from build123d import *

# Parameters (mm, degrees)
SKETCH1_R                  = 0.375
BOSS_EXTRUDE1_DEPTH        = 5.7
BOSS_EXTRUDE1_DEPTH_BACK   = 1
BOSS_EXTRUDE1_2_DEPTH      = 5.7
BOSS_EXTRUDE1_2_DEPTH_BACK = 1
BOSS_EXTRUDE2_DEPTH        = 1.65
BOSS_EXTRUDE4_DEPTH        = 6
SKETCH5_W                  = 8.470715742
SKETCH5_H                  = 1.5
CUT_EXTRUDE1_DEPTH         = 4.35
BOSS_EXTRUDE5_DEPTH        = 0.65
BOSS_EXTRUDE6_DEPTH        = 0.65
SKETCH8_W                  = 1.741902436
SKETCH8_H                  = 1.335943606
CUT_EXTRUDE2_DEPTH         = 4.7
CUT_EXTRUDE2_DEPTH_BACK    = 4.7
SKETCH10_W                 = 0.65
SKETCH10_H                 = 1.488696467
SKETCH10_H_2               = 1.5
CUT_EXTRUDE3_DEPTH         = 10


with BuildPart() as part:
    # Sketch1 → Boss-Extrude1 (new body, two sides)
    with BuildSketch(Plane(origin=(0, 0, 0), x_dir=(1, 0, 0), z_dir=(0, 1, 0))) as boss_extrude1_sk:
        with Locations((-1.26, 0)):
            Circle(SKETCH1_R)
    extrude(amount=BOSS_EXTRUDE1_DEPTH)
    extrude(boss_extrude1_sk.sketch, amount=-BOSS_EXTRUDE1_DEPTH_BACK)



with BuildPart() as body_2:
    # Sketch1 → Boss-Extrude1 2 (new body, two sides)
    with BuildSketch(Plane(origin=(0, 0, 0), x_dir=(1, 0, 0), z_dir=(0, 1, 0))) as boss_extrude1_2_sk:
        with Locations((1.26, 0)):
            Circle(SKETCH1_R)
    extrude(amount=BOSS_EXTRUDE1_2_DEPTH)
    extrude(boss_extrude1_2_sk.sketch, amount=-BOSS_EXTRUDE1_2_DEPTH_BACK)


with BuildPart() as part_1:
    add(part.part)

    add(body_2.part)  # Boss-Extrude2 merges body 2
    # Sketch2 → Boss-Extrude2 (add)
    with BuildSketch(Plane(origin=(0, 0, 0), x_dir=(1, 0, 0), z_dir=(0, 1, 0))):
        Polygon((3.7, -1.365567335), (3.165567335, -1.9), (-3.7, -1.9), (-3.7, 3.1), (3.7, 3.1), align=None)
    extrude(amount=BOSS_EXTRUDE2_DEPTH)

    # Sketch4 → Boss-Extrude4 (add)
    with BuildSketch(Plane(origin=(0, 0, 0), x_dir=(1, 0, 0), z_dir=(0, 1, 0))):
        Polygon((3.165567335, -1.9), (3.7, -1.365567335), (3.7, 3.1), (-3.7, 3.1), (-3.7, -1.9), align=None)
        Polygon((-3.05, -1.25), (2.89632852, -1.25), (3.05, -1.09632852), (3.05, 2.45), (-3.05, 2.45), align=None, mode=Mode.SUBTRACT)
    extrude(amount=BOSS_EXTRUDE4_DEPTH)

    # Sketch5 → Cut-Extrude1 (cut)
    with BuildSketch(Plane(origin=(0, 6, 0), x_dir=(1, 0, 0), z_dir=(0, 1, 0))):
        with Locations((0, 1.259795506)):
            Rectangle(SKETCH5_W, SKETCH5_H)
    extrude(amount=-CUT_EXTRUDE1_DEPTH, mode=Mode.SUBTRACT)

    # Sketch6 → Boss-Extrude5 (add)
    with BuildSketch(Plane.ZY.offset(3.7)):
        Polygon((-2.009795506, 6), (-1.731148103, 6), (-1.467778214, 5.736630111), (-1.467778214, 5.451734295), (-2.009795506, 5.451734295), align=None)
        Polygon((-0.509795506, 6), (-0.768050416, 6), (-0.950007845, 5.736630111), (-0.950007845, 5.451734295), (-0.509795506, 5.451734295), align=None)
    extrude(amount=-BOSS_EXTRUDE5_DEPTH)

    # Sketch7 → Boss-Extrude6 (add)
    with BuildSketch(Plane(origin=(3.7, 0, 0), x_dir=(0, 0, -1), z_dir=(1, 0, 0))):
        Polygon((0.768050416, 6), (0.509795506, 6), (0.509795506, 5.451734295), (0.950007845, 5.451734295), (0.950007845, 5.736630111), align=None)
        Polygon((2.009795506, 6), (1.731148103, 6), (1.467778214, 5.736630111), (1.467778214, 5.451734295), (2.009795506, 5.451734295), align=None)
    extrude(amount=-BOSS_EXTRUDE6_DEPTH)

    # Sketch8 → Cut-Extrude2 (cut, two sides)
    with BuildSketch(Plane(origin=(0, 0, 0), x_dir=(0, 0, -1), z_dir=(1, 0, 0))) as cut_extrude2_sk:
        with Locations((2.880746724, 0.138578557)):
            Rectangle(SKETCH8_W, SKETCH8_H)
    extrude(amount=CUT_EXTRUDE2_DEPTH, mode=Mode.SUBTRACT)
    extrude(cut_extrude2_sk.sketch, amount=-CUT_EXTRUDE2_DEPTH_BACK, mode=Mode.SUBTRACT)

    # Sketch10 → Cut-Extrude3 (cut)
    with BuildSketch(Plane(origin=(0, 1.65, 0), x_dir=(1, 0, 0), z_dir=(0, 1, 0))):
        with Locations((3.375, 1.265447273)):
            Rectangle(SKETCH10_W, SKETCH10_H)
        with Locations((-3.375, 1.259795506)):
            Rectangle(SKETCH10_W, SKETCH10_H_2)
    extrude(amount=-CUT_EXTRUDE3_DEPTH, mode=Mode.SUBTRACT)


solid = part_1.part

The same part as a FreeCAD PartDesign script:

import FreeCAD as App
import Part
import Sketcher

V = App.Vector
Q = App.Units.Quantity

doc = App.newDocument("Part")
params = doc.addObject("Spreadsheet::Sheet", "Params")
for row, (alias, value) in enumerate([
    ("sketch1_diameter", "0.75 mm"),
    ("pad1_length", "5.7 mm"),
    ("pad1_length2", "1 mm"),
    ("sketch2_diameter", "0.75 mm"),
    ("pad2_length", "5.7 mm"),
    ("pad2_length2", "1 mm"),
    ("sketch3_height", "5 mm"),
    ("sketch3_width", "7.4 mm"),
    ("pad3_length", "1.65 mm"),
    ("sketch4_height", "5 mm"),
    ("sketch4_width", "7.4 mm"),
    ("sketch4_width2", "6.1 mm"),
    ("sketch4_height2", "3.7 mm"),
    ("pad4_length", "6 mm"),
    ("sketch5_height", "1.5 mm"),
    ("pocket1_length", "4.35 mm"),
    ("pad5_length", "0.65 mm"),
    ("pad6_length", "0.65 mm"),
    ("sketch9_height", "1.5 mm"),
    ("sketch9_width", "0.65 mm"),
    ("pocket3_length", "10 mm"),
], start=1):
    params.set(f"A{row}", alias)
    params.set(f"B{row}", "=" + value)
    params.setAlias(f"B{row}", alias)

body = doc.addObject("PartDesign::Body", "Body")

# Sketch on XZ plane
sketch1 = body.newObject("Sketcher::SketchObject", "Sketch")
sketch1.AttachmentSupport = (doc.getObject("XZ_Plane"), [""])
sketch1.MapMode = "FlatFace"
sketch1.addGeometry(Part.Circle(V(-1.26, 0, 0), V(0, 0, 1), 0.38), False)
sketch1.addConstraint(Sketcher.Constraint("PointOnObject", 0, 3, -1))
sketch1.addConstraint(Sketcher.Constraint("Diameter", 0, Q("0.75 mm")))
sketch1.addConstraint(Sketcher.Constraint("DistanceX", 0, 3, -1, 1, Q("1.26 mm")))
sketch1.setExpression("Constraints[1]", "Params.sketch1_diameter")
pad1 = body.newObject("PartDesign::Pad", "Pad")
pad1.Profile = sketch1
pad1.Type = "TwoLengths"
pad1.setExpression("Length", "Params.pad1_length")
pad1.setExpression("Length2", "Params.pad1_length2")
pad1.Reversed = True
body2 = doc.addObject("PartDesign::Body", "Body001")

# Sketch on XZ plane
sketch2 = body2.newObject("Sketcher::SketchObject", "Sketch001")
sketch2.AttachmentSupport = (doc.getObject("XZ_Plane001"), [""])
sketch2.MapMode = "FlatFace"
sketch2.addGeometry(Part.Circle(V(1.26, 0, 0), V(0, 0, 1), 0.38), False)
sketch2.addConstraint(Sketcher.Constraint("PointOnObject", 0, 3, -1))
sketch2.addConstraint(Sketcher.Constraint("Diameter", 0, Q("0.75 mm")))
sketch2.addConstraint(Sketcher.Constraint("DistanceX", -1, 1, 0, 3, Q("1.26 mm")))
sketch2.setExpression("Constraints[1]", "Params.sketch2_diameter")
pad2 = body2.newObject("PartDesign::Pad", "Pad001")
pad2.Profile = sketch2
pad2.Type = "TwoLengths"
pad2.setExpression("Length", "Params.pad2_length")
pad2.setExpression("Length2", "Params.pad2_length2")
pad2.Reversed = True
body.AllowCompound = True
doc.recompute()

boolean = body.newObject("PartDesign::Boolean", "Boolean")
boolean.Type = "Fuse"
boolean.addObjects([body2])

# Sketch on XZ plane
sketch3 = body.newObject("Sketcher::SketchObject", "Sketch002")
sketch3.AttachmentSupport = (doc.getObject("XZ_Plane"), [""])
sketch3.MapMode = "FlatFace"
sketch3.addGeometry(Part.LineSegment(V(3.2, 1.9, 0), V(3.7, 1.4, 0)), False)
sketch3.addGeometry(Part.LineSegment(V(3.7, 1.4, 0), V(3.7, -3.1, 0)), False)
sketch3.addGeometry(Part.LineSegment(V(3.7, -3.1, 0), V(-3.7, -3.1, 0)), False)
sketch3.addGeometry(Part.LineSegment(V(-3.7, -3.1, 0), V(-3.7, 1.9, 0)), False)
sketch3.addGeometry(Part.LineSegment(V(-3.7, 1.9, 0), V(3.2, 1.9, 0)), False)
sketch3.addConstraint(Sketcher.Constraint("Coincident", 0, 2, 1, 1))
sketch3.addConstraint(Sketcher.Constraint("Coincident", 1, 2, 2, 1))
sketch3.addConstraint(Sketcher.Constraint("Coincident", 2, 2, 3, 1))
sketch3.addConstraint(Sketcher.Constraint("Coincident", 3, 2, 4, 1))
sketch3.addConstraint(Sketcher.Constraint("Coincident", 4, 2, 0, 1))
sketch3.addConstraint(Sketcher.Constraint("Vertical", 1))
sketch3.addConstraint(Sketcher.Constraint("Horizontal", 2))
sketch3.addConstraint(Sketcher.Constraint("Vertical", 3))
sketch3.addConstraint(Sketcher.Constraint("Horizontal", 4))
sketch3.addConstraint(Sketcher.Constraint("DistanceY", 3, 1, 3, 2, Q("5 mm")))
sketch3.addConstraint(Sketcher.Constraint("Angle", 0, Q("-45 deg")))
sketch3.addConstraint(Sketcher.Constraint("DistanceX", 2, 2, 2, 1, Q("7.4 mm")))
sketch3.addConstraint(Sketcher.Constraint("DistanceX", -1, 1, 0, 2, Q("3.7 mm")))
sketch3.addConstraint(Sketcher.Constraint("DistanceY", 1, 2, -1, 1, Q("3.1 mm")))
sketch3.addConstraint(Sketcher.Constraint("Distance", 0, Q("0.755802 mm")))
sketch3.setExpression("Constraints[9]", "Params.sketch3_height")
sketch3.setExpression("Constraints[11]", "Params.sketch3_width")
pad3 = body.newObject("PartDesign::Pad", "Pad002")
pad3.Profile = sketch3
pad3.setExpression("Length", "Params.pad3_length")
pad3.Reversed = True

# Sketch on XZ plane
sketch4 = body.newObject("Sketcher::SketchObject", "Sketch003")
sketch4.AttachmentSupport = (doc.getObject("XZ_Plane"), [""])
sketch4.MapMode = "FlatFace"
sketch4.addGeometry(Part.LineSegment(V(3.17, 1.9, 0), V(3.7, 1.37, 0)), False)
sketch4.addGeometry(Part.LineSegment(V(3.7, 1.37, 0), V(3.7, -3.1, 0)), False)
sketch4.addGeometry(Part.LineSegment(V(3.7, -3.1, 0), V(-3.7, -3.1, 0)), False)
sketch4.addGeometry(Part.LineSegment(V(-3.7, -3.1, 0), V(-3.7, 1.9, 0)), False)
sketch4.addGeometry(Part.LineSegment(V(-3.7, 1.9, 0), V(3.17, 1.9, 0)), False)
sketch4.addGeometry(Part.LineSegment(V(2.9, 1.25, 0), V(-3.05, 1.25, 0)), False)
sketch4.addGeometry(Part.LineSegment(V(-3.05, 1.25, 0), V(-3.05, -2.45, 0)), False)
sketch4.addGeometry(Part.LineSegment(V(-3.05, -2.45, 0), V(3.05, -2.45, 0)), False)
sketch4.addGeometry(Part.LineSegment(V(3.05, -2.45, 0), V(3.05, 1.1, 0)), False)
sketch4.addGeometry(Part.LineSegment(V(3.05, 1.1, 0), V(2.9, 1.25, 0)), False)
sketch4.addConstraint(Sketcher.Constraint("Coincident", 0, 2, 1, 1))
sketch4.addConstraint(Sketcher.Constraint("Coincident", 1, 2, 2, 1))
sketch4.addConstraint(Sketcher.Constraint("Coincident", 2, 2, 3, 1))
sketch4.addConstraint(Sketcher.Constraint("Coincident", 3, 2, 4, 1))
sketch4.addConstraint(Sketcher.Constraint("Coincident", 4, 2, 0, 1))
sketch4.addConstraint(Sketcher.Constraint("Coincident", 5, 2, 6, 1))
sketch4.addConstraint(Sketcher.Constraint("Coincident", 6, 2, 7, 1))
sketch4.addConstraint(Sketcher.Constraint("Coincident", 7, 2, 8, 1))
sketch4.addConstraint(Sketcher.Constraint("Coincident", 8, 2, 9, 1))
sketch4.addConstraint(Sketcher.Constraint("Coincident", 9, 2, 5, 1))
sketch4.addConstraint(Sketcher.Constraint("Vertical", 1))
sketch4.addConstraint(Sketcher.Constraint("Horizontal", 2))
sketch4.addConstraint(Sketcher.Constraint("Vertical", 3))
sketch4.addConstraint(Sketcher.Constraint("Horizontal", 4))
sketch4.addConstraint(Sketcher.Constraint("Horizontal", 5))
sketch4.addConstraint(Sketcher.Constraint("Vertical", 6))
sketch4.addConstraint(Sketcher.Constraint("Horizontal", 7))
sketch4.addConstraint(Sketcher.Constraint("Vertical", 8))
sketch4.addConstraint(Sketcher.Constraint("Parallel", 0, 9))
sketch4.addConstraint(Sketcher.Constraint("DistanceY", 3, 1, 3, 2, Q("5 mm")))
sketch4.addConstraint(Sketcher.Constraint("Angle", 0, Q("-45 deg")))
sketch4.addConstraint(Sketcher.Constraint("DistanceX", 2, 2, 2, 1, Q("7.4 mm")))
sketch4.addConstraint(Sketcher.Constraint("DistanceX", 7, 1, 7, 2, Q("6.1 mm")))
sketch4.addConstraint(Sketcher.Constraint("DistanceY", 6, 2, 6, 1, Q("3.7 mm")))
sketch4.addConstraint(Sketcher.Constraint("DistanceX", -1, 1, 0, 2, Q("3.7 mm")))
sketch4.addConstraint(Sketcher.Constraint("DistanceY", 1, 2, -1, 1, Q("3.1 mm")))
sketch4.addConstraint(Sketcher.Constraint("DistanceX", 5, 2, -1, 1, Q("3.05 mm")))
sketch4.addConstraint(Sketcher.Constraint("DistanceY", -1, 1, 5, 2, Q("1.25 mm")))
sketch4.addConstraint(Sketcher.Constraint("Distance", 0, Q("0.755802 mm")))
sketch4.addConstraint(Sketcher.Constraint("DistanceX", 5, 2, 5, 1, Q("5.946329 mm")))
sketch4.setExpression("Constraints[19]", "Params.sketch4_height")
sketch4.setExpression("Constraints[21]", "Params.sketch4_width")
sketch4.setExpression("Constraints[22]", "Params.sketch4_width2")
sketch4.setExpression("Constraints[23]", "Params.sketch4_height2")
pad4 = body.newObject("PartDesign::Pad", "Pad003")
pad4.Profile = sketch4
pad4.setExpression("Length", "Params.pad4_length")
pad4.Reversed = True

# Sketch on XZ plane
sketch5 = body.newObject("Sketcher::SketchObject", "Sketch004")
sketch5.AttachmentSupport = (doc.getObject("XZ_Plane"), [""])
sketch5.MapMode = "FlatFace"
sketch5.AttachmentOffset = App.Placement(V(0, 0, -6), App.Rotation())
sketch5.addGeometry(Part.LineSegment(V(-4.2, -2, 0), V(-4.2, -0.5, 0)), False)
sketch5.addGeometry(Part.LineSegment(V(-4.2, -0.5, 0), V(4.2, -0.5, 0)), False)
sketch5.addGeometry(Part.LineSegment(V(4.2, -0.5, 0), V(4.2, -2, 0)), False)
sketch5.addGeometry(Part.LineSegment(V(4.2, -2, 0), V(-4.2, -2, 0)), False)
sketch5.addConstraint(Sketcher.Constraint("Coincident", 0, 2, 1, 1))
sketch5.addConstraint(Sketcher.Constraint("Coincident", 1, 2, 2, 1))
sketch5.addConstraint(Sketcher.Constraint("Coincident", 2, 2, 3, 1))
sketch5.addConstraint(Sketcher.Constraint("Coincident", 3, 2, 0, 1))
sketch5.addConstraint(Sketcher.Constraint("Vertical", 0))
sketch5.addConstraint(Sketcher.Constraint("Horizontal", 1))
sketch5.addConstraint(Sketcher.Constraint("Vertical", 2))
sketch5.addConstraint(Sketcher.Constraint("Horizontal", 3))
sketch5.addConstraint(Sketcher.Constraint("DistanceY", 0, 1, 0, 2, Q("1.5 mm")))
sketch5.addConstraint(Sketcher.Constraint("DistanceX", 1, 1, 1, 2, Q("8.470716 mm")))
sketch5.addConstraint(Sketcher.Constraint("DistanceX", 0, 2, -1, 1, Q("4.235358 mm")))
sketch5.addConstraint(Sketcher.Constraint("DistanceY", 0, 2, -1, 1, Q("0.509796 mm")))
sketch5.setExpression("Constraints[8]", "Params.sketch5_height")
pocket1 = body.newObject("PartDesign::Pocket", "Pocket")
pocket1.Profile = sketch5
pocket1.setExpression("Length", "Params.pocket1_length")
pocket1.Reversed = True

# Sketch on YZ plane
sketch6 = body.newObject("Sketcher::SketchObject", "Sketch005")
sketch6.AttachmentSupport = (doc.getObject("YZ_Plane"), [""])
sketch6.MapMode = "FlatFace"
sketch6.AttachmentOffset = App.Placement(V(0, 0, -3.7), App.Rotation())
sketch6.addGeometry(Part.LineSegment(V(6, -1.73, 0), V(6, -2.01, 0)), False)
sketch6.addGeometry(Part.LineSegment(V(6, -2.01, 0), V(5.45, -2.01, 0)), False)
sketch6.addGeometry(Part.LineSegment(V(5.45, -2.01, 0), V(5.45, -1.47, 0)), False)
sketch6.addGeometry(Part.LineSegment(V(5.45, -1.47, 0), V(5.74, -1.47, 0)), False)
sketch6.addGeometry(Part.LineSegment(V(5.74, -1.47, 0), V(6, -1.73, 0)), False)
sketch6.addGeometry(Part.LineSegment(V(6, -0.51, 0), V(6, -0.77, 0)), False)
sketch6.addGeometry(Part.LineSegment(V(6, -0.77, 0), V(5.74, -0.95, 0)), False)
sketch6.addGeometry(Part.LineSegment(V(5.74, -0.95, 0), V(5.45, -0.95, 0)), False)
sketch6.addGeometry(Part.LineSegment(V(5.45, -0.95, 0), V(5.45, -0.51, 0)), False)
sketch6.addGeometry(Part.LineSegment(V(5.45, -0.51, 0), V(6, -0.51, 0)), False)
sketch6.addConstraint(Sketcher.Constraint("Coincident", 0, 2, 1, 1))
sketch6.addConstraint(Sketcher.Constraint("Coincident", 1, 2, 2, 1))
sketch6.addConstraint(Sketcher.Constraint("Coincident", 2, 2, 3, 1))
sketch6.addConstraint(Sketcher.Constraint("Coincident", 3, 2, 4, 1))
sketch6.addConstraint(Sketcher.Constraint("Coincident", 4, 2, 0, 1))
sketch6.addConstraint(Sketcher.Constraint("Coincident", 5, 2, 6, 1))
sketch6.addConstraint(Sketcher.Constraint("Coincident", 6, 2, 7, 1))
sketch6.addConstraint(Sketcher.Constraint("Coincident", 7, 2, 8, 1))
sketch6.addConstraint(Sketcher.Constraint("Coincident", 8, 2, 9, 1))
sketch6.addConstraint(Sketcher.Constraint("Coincident", 9, 2, 5, 1))
sketch6.addConstraint(Sketcher.Constraint("Vertical", 0))
sketch6.addConstraint(Sketcher.Constraint("Horizontal", 1))
sketch6.addConstraint(Sketcher.Constraint("Vertical", 2))
sketch6.addConstraint(Sketcher.Constraint("Horizontal", 3))
sketch6.addConstraint(Sketcher.Constraint("Vertical", 5))
sketch6.addConstraint(Sketcher.Constraint("Horizontal", 7))
sketch6.addConstraint(Sketcher.Constraint("Vertical", 8))
sketch6.addConstraint(Sketcher.Constraint("Horizontal", 9))
sketch6.addConstraint(Sketcher.Constraint("Vertical", 4, 2, 5, 2))
sketch6.addConstraint(Sketcher.Constraint("Vertical", 3, 2, 6, 2))
sketch6.addConstraint(Sketcher.Constraint("Vertical", 2, 2, 7, 2))
sketch6.addConstraint(Sketcher.Constraint("Angle", 4, Q("-45 deg")))
sketch6.addConstraint(Sketcher.Constraint("DistanceX", -1, 1, 0, 2, Q("6 mm")))
sketch6.addConstraint(Sketcher.Constraint("Distance", 4, Q("0.372461 mm")))
sketch6.addConstraint(Sketcher.Constraint("DistanceX", 1, 2, 1, 1, Q("0.548266 mm")))
sketch6.addConstraint(Sketcher.Constraint("DistanceY", 0, 2, 0, 1, Q("0.278647 mm")))
sketch6.addConstraint(Sketcher.Constraint("DistanceY", 5, 2, 5, 1, Q("0.258255 mm")))
sketch6.addConstraint(Sketcher.Constraint("DistanceY", 8, 1, 8, 2, Q("0.440212 mm")))
sketch6.addConstraint(Sketcher.Constraint("DistanceY", 2, 2, -1, 1, Q("1.467778 mm")))
sketch6.addConstraint(Sketcher.Constraint("DistanceY", 5, 2, -1, 1, Q("0.76805 mm")))
pad5 = body.newObject("PartDesign::Pad", "Pad004")
pad5.Profile = sketch6
pad5.setExpression("Length", "Params.pad5_length")

# Sketch on YZ plane
sketch7 = body.newObject("Sketcher::SketchObject", "Sketch006")
sketch7.AttachmentSupport = (doc.getObject("YZ_Plane"), [""])
sketch7.MapMode = "FlatFace"
sketch7.AttachmentOffset = App.Placement(V(0, 0, 3.7), App.Rotation())
sketch7.addGeometry(Part.LineSegment(V(6, -0.77, 0), V(6, -0.51, 0)), False)
sketch7.addGeometry(Part.LineSegment(V(6, -0.51, 0), V(5.45, -0.51, 0)), False)
sketch7.addGeometry(Part.LineSegment(V(5.45, -0.51, 0), V(5.45, -0.95, 0)), False)
sketch7.addGeometry(Part.LineSegment(V(5.45, -0.95, 0), V(5.74, -0.95, 0)), False)
sketch7.addGeometry(Part.LineSegment(V(5.74, -0.95, 0), V(6, -0.77, 0)), False)
sketch7.addGeometry(Part.LineSegment(V(6, -2.01, 0), V(6, -1.73, 0)), False)
sketch7.addGeometry(Part.LineSegment(V(6, -1.73, 0), V(5.74, -1.47, 0)), False)
sketch7.addGeometry(Part.LineSegment(V(5.74, -1.47, 0), V(5.45, -1.47, 0)), False)
sketch7.addGeometry(Part.LineSegment(V(5.45, -1.47, 0), V(5.45, -2.01, 0)), False)
sketch7.addGeometry(Part.LineSegment(V(5.45, -2.01, 0), V(6, -2.01, 0)), False)
sketch7.addConstraint(Sketcher.Constraint("Coincident", 0, 2, 1, 1))
sketch7.addConstraint(Sketcher.Constraint("Coincident", 1, 2, 2, 1))
sketch7.addConstraint(Sketcher.Constraint("Coincident", 2, 2, 3, 1))
sketch7.addConstraint(Sketcher.Constraint("Coincident", 3, 2, 4, 1))
sketch7.addConstraint(Sketcher.Constraint("Coincident", 4, 2, 0, 1))
sketch7.addConstraint(Sketcher.Constraint("Coincident", 5, 2, 6, 1))
sketch7.addConstraint(Sketcher.Constraint("Coincident", 6, 2, 7, 1))
sketch7.addConstraint(Sketcher.Constraint("Coincident", 7, 2, 8, 1))
sketch7.addConstraint(Sketcher.Constraint("Coincident", 8, 2, 9, 1))
sketch7.addConstraint(Sketcher.Constraint("Coincident", 9, 2, 5, 1))
sketch7.addConstraint(Sketcher.Constraint("Vertical", 0))
sketch7.addConstraint(Sketcher.Constraint("Horizontal", 1))
sketch7.addConstraint(Sketcher.Constraint("Vertical", 2))
sketch7.addConstraint(Sketcher.Constraint("Horizontal", 3))
sketch7.addConstraint(Sketcher.Constraint("Vertical", 5))
sketch7.addConstraint(Sketcher.Constraint("Horizontal", 7))
sketch7.addConstraint(Sketcher.Constraint("Vertical", 8))
sketch7.addConstraint(Sketcher.Constraint("Horizontal", 9))
sketch7.addConstraint(Sketcher.Constraint("Vertical", 4, 2, 5, 2))
sketch7.addConstraint(Sketcher.Constraint("Vertical", 3, 2, 6, 2))
sketch7.addConstraint(Sketcher.Constraint("Vertical", 2, 2, 7, 2))
sketch7.addConstraint(Sketcher.Constraint("Angle", 6, Q("135 deg")))
sketch7.addConstraint(Sketcher.Constraint("DistanceX", -1, 1, 0, 2, Q("6 mm")))
sketch7.addConstraint(Sketcher.Constraint("Distance", 6, Q("0.372461 mm")))
sketch7.addConstraint(Sketcher.Constraint("DistanceX", 1, 2, 1, 1, Q("0.548266 mm")))
sketch7.addConstraint(Sketcher.Constraint("DistanceY", 0, 1, 0, 2, Q("0.258255 mm")))
sketch7.addConstraint(Sketcher.Constraint("DistanceY", 2, 2, 2, 1, Q("0.440212 mm")))
sketch7.addConstraint(Sketcher.Constraint("DistanceY", 5, 1, 5, 2, Q("0.278647 mm")))
sketch7.addConstraint(Sketcher.Constraint("DistanceY", 4, 2, -1, 1, Q("0.76805 mm")))
sketch7.addConstraint(Sketcher.Constraint("DistanceY", 5, 2, -1, 1, Q("1.731148 mm")))
pad6 = body.newObject("PartDesign::Pad", "Pad005")
pad6.Profile = sketch7
pad6.setExpression("Length", "Params.pad6_length")
pad6.Reversed = True

# Sketch on YZ plane
sketch8 = body.newObject("Sketcher::SketchObject", "Sketch007")
sketch8.AttachmentSupport = (doc.getObject("YZ_Plane"), [""])
sketch8.MapMode = "FlatFace"
sketch8.addGeometry(Part.LineSegment(V(0.8, -2, 0), V(-0.5, -2, 0)), False)
sketch8.addGeometry(Part.LineSegment(V(-0.5, -2, 0), V(-0.5, -3.8, 0)), False)
sketch8.addGeometry(Part.LineSegment(V(-0.5, -3.8, 0), V(0.8, -3.8, 0)), False)
sketch8.addGeometry(Part.LineSegment(V(0.8, -3.8, 0), V(0.8, -2, 0)), False)
sketch8.addConstraint(Sketcher.Constraint("Coincident", 0, 2, 1, 1))
sketch8.addConstraint(Sketcher.Constraint("Coincident", 1, 2, 2, 1))
sketch8.addConstraint(Sketcher.Constraint("Coincident", 2, 2, 3, 1))
sketch8.addConstraint(Sketcher.Constraint("Coincident", 3, 2, 0, 1))
sketch8.addConstraint(Sketcher.Constraint("Horizontal", 0))
sketch8.addConstraint(Sketcher.Constraint("Vertical", 1))
sketch8.addConstraint(Sketcher.Constraint("Horizontal", 2))
sketch8.addConstraint(Sketcher.Constraint("Vertical", 3))
sketch8.addConstraint(Sketcher.Constraint("DistanceX", 0, 2, 0, 1, Q("1.335944 mm")))
sketch8.addConstraint(Sketcher.Constraint("DistanceY", 1, 2, 1, 1, Q("1.741902 mm")))
sketch8.addConstraint(Sketcher.Constraint("DistanceX", -1, 1, 2, 2, Q("0.80655 mm")))
sketch8.addConstraint(Sketcher.Constraint("DistanceY", 0, 2, -1, 1, Q("2.009796 mm")))
pocket2 = body.newObject("PartDesign::Pocket", "Pocket001")
pocket2.Profile = sketch8
pocket2.Type = "ThroughAll"
pocket2.Midplane = True

# Sketch on XZ plane
sketch9 = body.newObject("Sketcher::SketchObject", "Sketch008")
sketch9.AttachmentSupport = (doc.getObject("XZ_Plane"), [""])
sketch9.MapMode = "FlatFace"
sketch9.AttachmentOffset = App.Placement(V(0, 0, -1.65), App.Rotation())
sketch9.addGeometry(Part.LineSegment(V(3, -2, 0), V(3, -0.5, 0)), False)
sketch9.addGeometry(Part.LineSegment(V(3, -0.5, 0), V(3.7, -0.5, 0)), False)
sketch9.addGeometry(Part.LineSegment(V(3.7, -0.5, 0), V(3.7, -2, 0)), False)
sketch9.addGeometry(Part.LineSegment(V(3.7, -2, 0), V(3, -2, 0)), False)
sketch9.addGeometry(Part.LineSegment(V(-3.7, -2, 0), V(-3.7, -0.5, 0)), False)
sketch9.addGeometry(Part.LineSegment(V(-3.7, -0.5, 0), V(-3, -0.5, 0)), False)
sketch9.addGeometry(Part.LineSegment(V(-3, -0.5, 0), V(-3, -2, 0)), False)
sketch9.addGeometry(Part.LineSegment(V(-3, -2, 0), V(-3.7, -2, 0)), False)
sketch9.addConstraint(Sketcher.Constraint("Coincident", 0, 2, 1, 1))
sketch9.addConstraint(Sketcher.Constraint("Coincident", 1, 2, 2, 1))
sketch9.addConstraint(Sketcher.Constraint("Coincident", 2, 2, 3, 1))
sketch9.addConstraint(Sketcher.Constraint("Coincident", 3, 2, 0, 1))
sketch9.addConstraint(Sketcher.Constraint("Coincident", 4, 2, 5, 1))
sketch9.addConstraint(Sketcher.Constraint("Coincident", 5, 2, 6, 1))
sketch9.addConstraint(Sketcher.Constraint("Coincident", 6, 2, 7, 1))
sketch9.addConstraint(Sketcher.Constraint("Coincident", 7, 2, 4, 1))
sketch9.addConstraint(Sketcher.Constraint("Vertical", 0))
sketch9.addConstraint(Sketcher.Constraint("Horizontal", 1))
sketch9.addConstraint(Sketcher.Constraint("Vertical", 2))
sketch9.addConstraint(Sketcher.Constraint("Horizontal", 3))
sketch9.addConstraint(Sketcher.Constraint("Vertical", 4))
sketch9.addConstraint(Sketcher.Constraint("Horizontal", 5))
sketch9.addConstraint(Sketcher.Constraint("Vertical", 6))
sketch9.addConstraint(Sketcher.Constraint("Horizontal", 7))
sketch9.addConstraint(Sketcher.Constraint("Symmetric", 3, 2, 6, 2, -2))
sketch9.addConstraint(Sketcher.Constraint("Equal", 3, 5))
sketch9.addConstraint(Sketcher.Constraint("DistanceY", 4, 1, 4, 2, Q("1.5 mm")))
sketch9.addConstraint(Sketcher.Constraint("DistanceX", 1, 1, 1, 2, Q("0.65 mm")))
sketch9.addConstraint(Sketcher.Constraint("DistanceX", -1, 1, 1, 2, Q("3.7 mm")))
sketch9.addConstraint(Sketcher.Constraint("DistanceY", 0, 2, -1, 1, Q("0.521099 mm")))
sketch9.addConstraint(Sketcher.Constraint("DistanceY", 0, 1, 0, 2, Q("1.488696 mm")))
sketch9.setExpression("Constraints[18]", "Params.sketch9_height")
sketch9.setExpression("Constraints[19]", "Params.sketch9_width")
pocket3 = body.newObject("PartDesign::Pocket", "Pocket002")
pocket3.Profile = sketch9
pocket3.setExpression("Length", "Params.pocket3_length")
pocket3.Reversed = True

doc.recompute()
